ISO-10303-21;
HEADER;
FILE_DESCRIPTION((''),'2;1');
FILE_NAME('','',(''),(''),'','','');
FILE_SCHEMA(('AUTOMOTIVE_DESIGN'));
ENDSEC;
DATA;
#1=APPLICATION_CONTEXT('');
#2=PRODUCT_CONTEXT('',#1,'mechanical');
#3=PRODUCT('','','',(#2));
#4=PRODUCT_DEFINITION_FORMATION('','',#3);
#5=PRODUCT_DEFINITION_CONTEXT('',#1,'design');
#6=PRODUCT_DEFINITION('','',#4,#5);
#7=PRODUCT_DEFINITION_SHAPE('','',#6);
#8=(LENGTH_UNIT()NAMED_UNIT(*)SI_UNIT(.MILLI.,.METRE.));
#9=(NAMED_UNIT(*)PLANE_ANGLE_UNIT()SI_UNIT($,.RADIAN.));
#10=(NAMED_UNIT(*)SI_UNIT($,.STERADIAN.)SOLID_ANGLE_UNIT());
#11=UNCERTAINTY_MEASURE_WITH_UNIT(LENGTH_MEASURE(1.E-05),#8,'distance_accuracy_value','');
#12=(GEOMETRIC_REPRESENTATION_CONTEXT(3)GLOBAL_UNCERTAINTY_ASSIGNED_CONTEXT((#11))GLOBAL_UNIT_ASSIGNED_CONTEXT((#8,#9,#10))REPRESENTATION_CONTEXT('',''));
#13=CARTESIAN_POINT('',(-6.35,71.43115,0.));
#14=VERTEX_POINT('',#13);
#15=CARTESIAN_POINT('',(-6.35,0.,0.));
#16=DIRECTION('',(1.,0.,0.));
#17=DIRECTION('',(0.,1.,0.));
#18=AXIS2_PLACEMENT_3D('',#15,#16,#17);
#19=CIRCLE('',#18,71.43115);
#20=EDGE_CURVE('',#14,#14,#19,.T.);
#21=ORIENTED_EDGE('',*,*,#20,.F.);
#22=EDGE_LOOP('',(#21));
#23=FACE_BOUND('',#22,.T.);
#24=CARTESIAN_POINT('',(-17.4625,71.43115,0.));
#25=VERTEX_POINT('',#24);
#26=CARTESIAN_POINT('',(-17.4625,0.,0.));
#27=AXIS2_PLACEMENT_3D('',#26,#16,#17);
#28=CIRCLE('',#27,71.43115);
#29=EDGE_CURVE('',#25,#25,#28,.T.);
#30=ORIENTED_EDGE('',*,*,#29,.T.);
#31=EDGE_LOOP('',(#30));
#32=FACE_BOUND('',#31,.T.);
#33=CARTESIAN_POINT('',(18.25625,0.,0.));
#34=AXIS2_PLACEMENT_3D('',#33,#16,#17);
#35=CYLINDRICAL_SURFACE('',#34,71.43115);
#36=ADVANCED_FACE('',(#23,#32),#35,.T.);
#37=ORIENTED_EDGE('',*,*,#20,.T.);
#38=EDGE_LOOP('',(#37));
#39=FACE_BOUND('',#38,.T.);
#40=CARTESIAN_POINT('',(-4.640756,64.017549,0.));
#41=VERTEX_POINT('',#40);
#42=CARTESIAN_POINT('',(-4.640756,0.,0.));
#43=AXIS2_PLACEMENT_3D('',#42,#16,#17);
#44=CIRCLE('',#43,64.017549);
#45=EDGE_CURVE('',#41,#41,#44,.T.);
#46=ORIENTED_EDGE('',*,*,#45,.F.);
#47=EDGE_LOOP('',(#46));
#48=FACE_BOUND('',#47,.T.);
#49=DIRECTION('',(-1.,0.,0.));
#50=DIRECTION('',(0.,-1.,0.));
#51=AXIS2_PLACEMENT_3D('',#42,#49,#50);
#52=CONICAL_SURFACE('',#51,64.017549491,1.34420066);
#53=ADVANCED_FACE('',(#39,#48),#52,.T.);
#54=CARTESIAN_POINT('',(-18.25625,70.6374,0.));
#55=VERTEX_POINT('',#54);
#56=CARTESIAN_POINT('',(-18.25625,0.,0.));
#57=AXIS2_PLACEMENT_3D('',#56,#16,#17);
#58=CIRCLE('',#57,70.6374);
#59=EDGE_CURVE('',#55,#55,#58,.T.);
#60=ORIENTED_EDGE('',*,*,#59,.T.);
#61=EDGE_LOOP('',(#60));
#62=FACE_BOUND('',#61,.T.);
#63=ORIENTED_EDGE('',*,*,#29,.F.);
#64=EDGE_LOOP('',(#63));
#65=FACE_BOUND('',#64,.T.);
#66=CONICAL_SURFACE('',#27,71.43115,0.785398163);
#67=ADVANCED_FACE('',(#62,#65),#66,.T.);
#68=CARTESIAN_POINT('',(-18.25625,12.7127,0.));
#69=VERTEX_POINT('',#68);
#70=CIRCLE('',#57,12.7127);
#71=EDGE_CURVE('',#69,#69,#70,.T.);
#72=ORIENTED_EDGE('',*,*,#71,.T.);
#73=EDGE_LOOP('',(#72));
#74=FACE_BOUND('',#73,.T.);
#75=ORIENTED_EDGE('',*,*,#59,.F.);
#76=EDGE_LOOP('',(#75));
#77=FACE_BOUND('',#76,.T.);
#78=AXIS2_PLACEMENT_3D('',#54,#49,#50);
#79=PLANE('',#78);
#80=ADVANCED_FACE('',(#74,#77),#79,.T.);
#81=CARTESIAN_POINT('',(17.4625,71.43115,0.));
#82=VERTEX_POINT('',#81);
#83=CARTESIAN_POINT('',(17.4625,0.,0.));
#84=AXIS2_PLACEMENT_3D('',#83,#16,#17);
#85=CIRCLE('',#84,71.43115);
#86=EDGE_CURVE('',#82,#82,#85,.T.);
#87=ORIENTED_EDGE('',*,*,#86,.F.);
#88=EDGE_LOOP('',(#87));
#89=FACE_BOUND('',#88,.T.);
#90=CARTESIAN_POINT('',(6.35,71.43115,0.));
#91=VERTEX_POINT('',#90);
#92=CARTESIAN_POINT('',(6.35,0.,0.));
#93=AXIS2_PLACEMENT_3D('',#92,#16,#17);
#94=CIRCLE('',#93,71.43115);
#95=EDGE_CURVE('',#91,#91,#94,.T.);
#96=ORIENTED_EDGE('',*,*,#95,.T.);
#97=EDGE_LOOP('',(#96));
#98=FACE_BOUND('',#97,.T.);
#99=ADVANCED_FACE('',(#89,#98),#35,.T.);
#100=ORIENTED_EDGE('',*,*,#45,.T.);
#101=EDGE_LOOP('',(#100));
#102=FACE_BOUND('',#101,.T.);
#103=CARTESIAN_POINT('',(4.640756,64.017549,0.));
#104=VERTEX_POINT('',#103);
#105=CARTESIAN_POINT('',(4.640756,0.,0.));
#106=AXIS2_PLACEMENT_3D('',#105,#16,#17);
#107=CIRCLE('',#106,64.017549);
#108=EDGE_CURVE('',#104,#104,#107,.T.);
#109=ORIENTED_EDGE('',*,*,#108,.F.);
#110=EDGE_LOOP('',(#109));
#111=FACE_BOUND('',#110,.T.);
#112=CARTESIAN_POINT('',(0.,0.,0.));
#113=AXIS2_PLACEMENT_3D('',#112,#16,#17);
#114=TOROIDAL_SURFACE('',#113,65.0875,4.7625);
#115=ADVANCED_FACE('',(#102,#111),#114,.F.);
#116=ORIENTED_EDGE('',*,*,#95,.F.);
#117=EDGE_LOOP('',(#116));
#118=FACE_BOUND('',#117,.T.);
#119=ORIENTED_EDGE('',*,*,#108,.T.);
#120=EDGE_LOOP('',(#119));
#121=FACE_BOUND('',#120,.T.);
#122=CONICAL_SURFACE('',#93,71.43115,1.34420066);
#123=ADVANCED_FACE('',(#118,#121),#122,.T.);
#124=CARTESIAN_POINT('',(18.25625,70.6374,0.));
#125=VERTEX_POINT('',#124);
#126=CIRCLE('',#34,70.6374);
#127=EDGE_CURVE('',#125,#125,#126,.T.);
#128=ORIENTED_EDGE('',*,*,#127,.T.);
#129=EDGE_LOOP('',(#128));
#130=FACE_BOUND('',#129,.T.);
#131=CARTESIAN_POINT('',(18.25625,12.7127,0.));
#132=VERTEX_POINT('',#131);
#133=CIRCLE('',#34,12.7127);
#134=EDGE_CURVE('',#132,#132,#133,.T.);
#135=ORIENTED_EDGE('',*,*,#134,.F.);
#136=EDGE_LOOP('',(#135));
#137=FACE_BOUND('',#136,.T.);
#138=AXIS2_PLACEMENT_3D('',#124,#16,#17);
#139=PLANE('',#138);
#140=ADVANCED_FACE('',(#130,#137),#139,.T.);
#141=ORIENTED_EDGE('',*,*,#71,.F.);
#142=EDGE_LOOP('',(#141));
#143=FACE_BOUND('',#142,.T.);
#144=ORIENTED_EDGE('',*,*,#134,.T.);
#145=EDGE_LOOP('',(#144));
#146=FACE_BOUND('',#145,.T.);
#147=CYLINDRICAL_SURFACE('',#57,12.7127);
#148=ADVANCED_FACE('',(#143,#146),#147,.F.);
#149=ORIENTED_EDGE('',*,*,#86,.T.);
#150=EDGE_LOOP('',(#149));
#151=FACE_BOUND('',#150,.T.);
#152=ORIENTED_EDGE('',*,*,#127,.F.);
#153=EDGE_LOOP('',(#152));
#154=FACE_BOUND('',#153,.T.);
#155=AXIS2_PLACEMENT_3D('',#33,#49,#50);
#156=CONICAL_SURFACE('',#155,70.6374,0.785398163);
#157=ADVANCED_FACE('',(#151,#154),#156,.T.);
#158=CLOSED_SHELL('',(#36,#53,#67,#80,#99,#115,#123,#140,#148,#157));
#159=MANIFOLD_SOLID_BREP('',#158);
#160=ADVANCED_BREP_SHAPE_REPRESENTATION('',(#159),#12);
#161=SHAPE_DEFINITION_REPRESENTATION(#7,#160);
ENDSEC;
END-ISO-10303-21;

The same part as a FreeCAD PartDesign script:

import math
import FreeCAD as App
import Part
import Sketcher
Q = App.Units.Quantity

doc = App.newDocument("Part")
body = doc.addObject("PartDesign::Body", "Body")

sketch1 = body.newObject("Sketcher::SketchObject", "Sketch")
sketch1.AttachmentSupport = (doc.getObject("XY_Plane"), [""])
sketch1.MapMode = "FlatFace"
sketch1.addGeometry(Part.LineSegment(App.Vector(-18.25625, 0, 0), App.Vector(18.25625, 0, 0)), False)
sketch1.addGeometry(Part.LineSegment(App.Vector(18.25625, 0, 0), App.Vector(18.25625, 70.6374, 0)), False)
sketch1.addGeometry(Part.LineSegment(App.Vector(18.25625, 70.6374, 0), App.Vector(17.4625, 71.43115, 0)), False)
sketch1.addGeometry(Part.LineSegment(App.Vector(17.4625, 71.43115, 0), App.Vector(6.35, 71.43115, 0)), False)
sketch1.addGeometry(Part.LineSegment(App.Vector(6.35, 71.43115, 0), App.Vector(4.640756, 64.017549, 0)), False)
sketch1.addGeometry(Part.ArcOfCircle(Part.Circle(App.Vector(0, 65.0875, 0), App.Vector(0, 0, 1), 4.7625), math.radians(-167.017025), math.radians(-12.982975)), False)
sketch1.addGeometry(Part.LineSegment(App.Vector(-4.640756, 64.017549, 0), App.Vector(-6.35, 71.43115, 0)), False)
sketch1.addGeometry(Part.LineSegment(App.Vector(-6.35, 71.43115, 0), App.Vector(-17.4625, 71.43115, 0)), False)
sketch1.addGeometry(Part.LineSegment(App.Vector(-17.4625, 71.43115, 0), App.Vector(-18.25625, 70.6374, 0)), False)
sketch1.addGeometry(Part.LineSegment(App.Vector(-18.25625, 70.6374, 0), App.Vector(-18.25625, 0, 0)), False)
sketch1.addConstraint(Sketcher.Constraint("Coincident", 0, 2, 1, 1))
sketch1.addConstraint(Sketcher.Constraint("Coincident", 1, 2, 2, 1))
sketch1.addConstraint(Sketcher.Constraint("Coincident", 2, 2, 3, 1))
sketch1.addConstraint(Sketcher.Constraint("Coincident", 3, 2, 4, 1))
sketch1.addConstraint(Sketcher.Constraint("Tangent", 4, 2, 5, 2))
sketch1.addConstraint(Sketcher.Constraint("Tangent", 5, 1, 6, 1))
sketch1.addConstraint(Sketcher.Constraint("Coincident", 6, 2, 7, 1))
sketch1.addConstraint(Sketcher.Constraint("Coincident", 7, 2, 8, 1))
sketch1.addConstraint(Sketcher.Constraint("Coincident", 8, 2, 9, 1))
sketch1.addConstraint(Sketcher.Constraint("Coincident", 9, 2, 0, 1))
sketch1.addConstraint(Sketcher.Constraint("Horizontal", 0))
sketch1.addConstraint(Sketcher.Constraint("Vertical", 1))
sketch1.addConstraint(Sketcher.Constraint("Horizontal", 3))
sketch1.addConstraint(Sketcher.Constraint("Horizontal", 7))
sketch1.addConstraint(Sketcher.Constraint("Vertical", 9))
sketch1.addConstraint(Sketcher.Constraint("Symmetric", 0, 2, 9, 2, -1, 1))
sketch1.addConstraint(Sketcher.Constraint("Symmetric", 4, 2, 5, 1, -2))
sketch1.addConstraint(Sketcher.Constraint("Symmetric", 2, 2, 7, 2, -2))
sketch1.addConstraint(Sketcher.Constraint("Perpendicular", 2, 8))
sketch1.addConstraint(Sketcher.Constraint("Horizontal", 1, 2, 8, 2))
sketch1.addConstraint(Sketcher.Constraint("Radius", 5, Q("0.1875 in")))
sketch1.addConstraint(Sketcher.Constraint("DistanceX", 6, 2, 3, 2, Q("0.5 in")))
sketch1.addConstraint(Sketcher.Constraint("DistanceX", 0, 1, 0, 2, Q("1.4375 in")))
sketch1.addConstraint(Sketcher.Constraint("DistanceX", 3, 2, 3, 1, Q("0.4375 in")))
sketch1.addConstraint(Sketcher.Constraint("DistanceY", 1, 1, 1, 2, Q("2.781 in")))
sketch1.addConstraint(Sketcher.Constraint("DistanceY", -1, 1, 5, 3, Q("2.5625 in")))
revolution = body.newObject("PartDesign::Revolution", "Revolution")
revolution.Profile = sketch1
revolution.ReferenceAxis = (sketch1, ["H_Axis"])
revolution.Angle = 360

sketch2 = body.newObject("Sketcher::SketchObject", "Sketch001")
sketch2.AttachmentSupport = (doc.getObject("YZ_Plane"), [""])
sketch2.MapMode = "FlatFace"
sketch2.AttachmentOffset = App.Placement(App.Vector(0, 0, 0.71875 * 25.4), App.Rotation())
sketch2.addGeometry(Part.Circle(App.Vector(0, 0, 0), App.Vector(0, 0, 1), 12.7127), False)
sketch2.addConstraint(Sketcher.Constraint("Coincident", 0, 3, -1, 1))
sketch2.addConstraint(Sketcher.Constraint("Diameter", 0, Q("1.001 in")))
pocket1 = body.newObject("PartDesign::Pocket", "Pocket")
pocket1.Profile = sketch2
pocket1.Type = "ThroughAll"

doc.recompute()
